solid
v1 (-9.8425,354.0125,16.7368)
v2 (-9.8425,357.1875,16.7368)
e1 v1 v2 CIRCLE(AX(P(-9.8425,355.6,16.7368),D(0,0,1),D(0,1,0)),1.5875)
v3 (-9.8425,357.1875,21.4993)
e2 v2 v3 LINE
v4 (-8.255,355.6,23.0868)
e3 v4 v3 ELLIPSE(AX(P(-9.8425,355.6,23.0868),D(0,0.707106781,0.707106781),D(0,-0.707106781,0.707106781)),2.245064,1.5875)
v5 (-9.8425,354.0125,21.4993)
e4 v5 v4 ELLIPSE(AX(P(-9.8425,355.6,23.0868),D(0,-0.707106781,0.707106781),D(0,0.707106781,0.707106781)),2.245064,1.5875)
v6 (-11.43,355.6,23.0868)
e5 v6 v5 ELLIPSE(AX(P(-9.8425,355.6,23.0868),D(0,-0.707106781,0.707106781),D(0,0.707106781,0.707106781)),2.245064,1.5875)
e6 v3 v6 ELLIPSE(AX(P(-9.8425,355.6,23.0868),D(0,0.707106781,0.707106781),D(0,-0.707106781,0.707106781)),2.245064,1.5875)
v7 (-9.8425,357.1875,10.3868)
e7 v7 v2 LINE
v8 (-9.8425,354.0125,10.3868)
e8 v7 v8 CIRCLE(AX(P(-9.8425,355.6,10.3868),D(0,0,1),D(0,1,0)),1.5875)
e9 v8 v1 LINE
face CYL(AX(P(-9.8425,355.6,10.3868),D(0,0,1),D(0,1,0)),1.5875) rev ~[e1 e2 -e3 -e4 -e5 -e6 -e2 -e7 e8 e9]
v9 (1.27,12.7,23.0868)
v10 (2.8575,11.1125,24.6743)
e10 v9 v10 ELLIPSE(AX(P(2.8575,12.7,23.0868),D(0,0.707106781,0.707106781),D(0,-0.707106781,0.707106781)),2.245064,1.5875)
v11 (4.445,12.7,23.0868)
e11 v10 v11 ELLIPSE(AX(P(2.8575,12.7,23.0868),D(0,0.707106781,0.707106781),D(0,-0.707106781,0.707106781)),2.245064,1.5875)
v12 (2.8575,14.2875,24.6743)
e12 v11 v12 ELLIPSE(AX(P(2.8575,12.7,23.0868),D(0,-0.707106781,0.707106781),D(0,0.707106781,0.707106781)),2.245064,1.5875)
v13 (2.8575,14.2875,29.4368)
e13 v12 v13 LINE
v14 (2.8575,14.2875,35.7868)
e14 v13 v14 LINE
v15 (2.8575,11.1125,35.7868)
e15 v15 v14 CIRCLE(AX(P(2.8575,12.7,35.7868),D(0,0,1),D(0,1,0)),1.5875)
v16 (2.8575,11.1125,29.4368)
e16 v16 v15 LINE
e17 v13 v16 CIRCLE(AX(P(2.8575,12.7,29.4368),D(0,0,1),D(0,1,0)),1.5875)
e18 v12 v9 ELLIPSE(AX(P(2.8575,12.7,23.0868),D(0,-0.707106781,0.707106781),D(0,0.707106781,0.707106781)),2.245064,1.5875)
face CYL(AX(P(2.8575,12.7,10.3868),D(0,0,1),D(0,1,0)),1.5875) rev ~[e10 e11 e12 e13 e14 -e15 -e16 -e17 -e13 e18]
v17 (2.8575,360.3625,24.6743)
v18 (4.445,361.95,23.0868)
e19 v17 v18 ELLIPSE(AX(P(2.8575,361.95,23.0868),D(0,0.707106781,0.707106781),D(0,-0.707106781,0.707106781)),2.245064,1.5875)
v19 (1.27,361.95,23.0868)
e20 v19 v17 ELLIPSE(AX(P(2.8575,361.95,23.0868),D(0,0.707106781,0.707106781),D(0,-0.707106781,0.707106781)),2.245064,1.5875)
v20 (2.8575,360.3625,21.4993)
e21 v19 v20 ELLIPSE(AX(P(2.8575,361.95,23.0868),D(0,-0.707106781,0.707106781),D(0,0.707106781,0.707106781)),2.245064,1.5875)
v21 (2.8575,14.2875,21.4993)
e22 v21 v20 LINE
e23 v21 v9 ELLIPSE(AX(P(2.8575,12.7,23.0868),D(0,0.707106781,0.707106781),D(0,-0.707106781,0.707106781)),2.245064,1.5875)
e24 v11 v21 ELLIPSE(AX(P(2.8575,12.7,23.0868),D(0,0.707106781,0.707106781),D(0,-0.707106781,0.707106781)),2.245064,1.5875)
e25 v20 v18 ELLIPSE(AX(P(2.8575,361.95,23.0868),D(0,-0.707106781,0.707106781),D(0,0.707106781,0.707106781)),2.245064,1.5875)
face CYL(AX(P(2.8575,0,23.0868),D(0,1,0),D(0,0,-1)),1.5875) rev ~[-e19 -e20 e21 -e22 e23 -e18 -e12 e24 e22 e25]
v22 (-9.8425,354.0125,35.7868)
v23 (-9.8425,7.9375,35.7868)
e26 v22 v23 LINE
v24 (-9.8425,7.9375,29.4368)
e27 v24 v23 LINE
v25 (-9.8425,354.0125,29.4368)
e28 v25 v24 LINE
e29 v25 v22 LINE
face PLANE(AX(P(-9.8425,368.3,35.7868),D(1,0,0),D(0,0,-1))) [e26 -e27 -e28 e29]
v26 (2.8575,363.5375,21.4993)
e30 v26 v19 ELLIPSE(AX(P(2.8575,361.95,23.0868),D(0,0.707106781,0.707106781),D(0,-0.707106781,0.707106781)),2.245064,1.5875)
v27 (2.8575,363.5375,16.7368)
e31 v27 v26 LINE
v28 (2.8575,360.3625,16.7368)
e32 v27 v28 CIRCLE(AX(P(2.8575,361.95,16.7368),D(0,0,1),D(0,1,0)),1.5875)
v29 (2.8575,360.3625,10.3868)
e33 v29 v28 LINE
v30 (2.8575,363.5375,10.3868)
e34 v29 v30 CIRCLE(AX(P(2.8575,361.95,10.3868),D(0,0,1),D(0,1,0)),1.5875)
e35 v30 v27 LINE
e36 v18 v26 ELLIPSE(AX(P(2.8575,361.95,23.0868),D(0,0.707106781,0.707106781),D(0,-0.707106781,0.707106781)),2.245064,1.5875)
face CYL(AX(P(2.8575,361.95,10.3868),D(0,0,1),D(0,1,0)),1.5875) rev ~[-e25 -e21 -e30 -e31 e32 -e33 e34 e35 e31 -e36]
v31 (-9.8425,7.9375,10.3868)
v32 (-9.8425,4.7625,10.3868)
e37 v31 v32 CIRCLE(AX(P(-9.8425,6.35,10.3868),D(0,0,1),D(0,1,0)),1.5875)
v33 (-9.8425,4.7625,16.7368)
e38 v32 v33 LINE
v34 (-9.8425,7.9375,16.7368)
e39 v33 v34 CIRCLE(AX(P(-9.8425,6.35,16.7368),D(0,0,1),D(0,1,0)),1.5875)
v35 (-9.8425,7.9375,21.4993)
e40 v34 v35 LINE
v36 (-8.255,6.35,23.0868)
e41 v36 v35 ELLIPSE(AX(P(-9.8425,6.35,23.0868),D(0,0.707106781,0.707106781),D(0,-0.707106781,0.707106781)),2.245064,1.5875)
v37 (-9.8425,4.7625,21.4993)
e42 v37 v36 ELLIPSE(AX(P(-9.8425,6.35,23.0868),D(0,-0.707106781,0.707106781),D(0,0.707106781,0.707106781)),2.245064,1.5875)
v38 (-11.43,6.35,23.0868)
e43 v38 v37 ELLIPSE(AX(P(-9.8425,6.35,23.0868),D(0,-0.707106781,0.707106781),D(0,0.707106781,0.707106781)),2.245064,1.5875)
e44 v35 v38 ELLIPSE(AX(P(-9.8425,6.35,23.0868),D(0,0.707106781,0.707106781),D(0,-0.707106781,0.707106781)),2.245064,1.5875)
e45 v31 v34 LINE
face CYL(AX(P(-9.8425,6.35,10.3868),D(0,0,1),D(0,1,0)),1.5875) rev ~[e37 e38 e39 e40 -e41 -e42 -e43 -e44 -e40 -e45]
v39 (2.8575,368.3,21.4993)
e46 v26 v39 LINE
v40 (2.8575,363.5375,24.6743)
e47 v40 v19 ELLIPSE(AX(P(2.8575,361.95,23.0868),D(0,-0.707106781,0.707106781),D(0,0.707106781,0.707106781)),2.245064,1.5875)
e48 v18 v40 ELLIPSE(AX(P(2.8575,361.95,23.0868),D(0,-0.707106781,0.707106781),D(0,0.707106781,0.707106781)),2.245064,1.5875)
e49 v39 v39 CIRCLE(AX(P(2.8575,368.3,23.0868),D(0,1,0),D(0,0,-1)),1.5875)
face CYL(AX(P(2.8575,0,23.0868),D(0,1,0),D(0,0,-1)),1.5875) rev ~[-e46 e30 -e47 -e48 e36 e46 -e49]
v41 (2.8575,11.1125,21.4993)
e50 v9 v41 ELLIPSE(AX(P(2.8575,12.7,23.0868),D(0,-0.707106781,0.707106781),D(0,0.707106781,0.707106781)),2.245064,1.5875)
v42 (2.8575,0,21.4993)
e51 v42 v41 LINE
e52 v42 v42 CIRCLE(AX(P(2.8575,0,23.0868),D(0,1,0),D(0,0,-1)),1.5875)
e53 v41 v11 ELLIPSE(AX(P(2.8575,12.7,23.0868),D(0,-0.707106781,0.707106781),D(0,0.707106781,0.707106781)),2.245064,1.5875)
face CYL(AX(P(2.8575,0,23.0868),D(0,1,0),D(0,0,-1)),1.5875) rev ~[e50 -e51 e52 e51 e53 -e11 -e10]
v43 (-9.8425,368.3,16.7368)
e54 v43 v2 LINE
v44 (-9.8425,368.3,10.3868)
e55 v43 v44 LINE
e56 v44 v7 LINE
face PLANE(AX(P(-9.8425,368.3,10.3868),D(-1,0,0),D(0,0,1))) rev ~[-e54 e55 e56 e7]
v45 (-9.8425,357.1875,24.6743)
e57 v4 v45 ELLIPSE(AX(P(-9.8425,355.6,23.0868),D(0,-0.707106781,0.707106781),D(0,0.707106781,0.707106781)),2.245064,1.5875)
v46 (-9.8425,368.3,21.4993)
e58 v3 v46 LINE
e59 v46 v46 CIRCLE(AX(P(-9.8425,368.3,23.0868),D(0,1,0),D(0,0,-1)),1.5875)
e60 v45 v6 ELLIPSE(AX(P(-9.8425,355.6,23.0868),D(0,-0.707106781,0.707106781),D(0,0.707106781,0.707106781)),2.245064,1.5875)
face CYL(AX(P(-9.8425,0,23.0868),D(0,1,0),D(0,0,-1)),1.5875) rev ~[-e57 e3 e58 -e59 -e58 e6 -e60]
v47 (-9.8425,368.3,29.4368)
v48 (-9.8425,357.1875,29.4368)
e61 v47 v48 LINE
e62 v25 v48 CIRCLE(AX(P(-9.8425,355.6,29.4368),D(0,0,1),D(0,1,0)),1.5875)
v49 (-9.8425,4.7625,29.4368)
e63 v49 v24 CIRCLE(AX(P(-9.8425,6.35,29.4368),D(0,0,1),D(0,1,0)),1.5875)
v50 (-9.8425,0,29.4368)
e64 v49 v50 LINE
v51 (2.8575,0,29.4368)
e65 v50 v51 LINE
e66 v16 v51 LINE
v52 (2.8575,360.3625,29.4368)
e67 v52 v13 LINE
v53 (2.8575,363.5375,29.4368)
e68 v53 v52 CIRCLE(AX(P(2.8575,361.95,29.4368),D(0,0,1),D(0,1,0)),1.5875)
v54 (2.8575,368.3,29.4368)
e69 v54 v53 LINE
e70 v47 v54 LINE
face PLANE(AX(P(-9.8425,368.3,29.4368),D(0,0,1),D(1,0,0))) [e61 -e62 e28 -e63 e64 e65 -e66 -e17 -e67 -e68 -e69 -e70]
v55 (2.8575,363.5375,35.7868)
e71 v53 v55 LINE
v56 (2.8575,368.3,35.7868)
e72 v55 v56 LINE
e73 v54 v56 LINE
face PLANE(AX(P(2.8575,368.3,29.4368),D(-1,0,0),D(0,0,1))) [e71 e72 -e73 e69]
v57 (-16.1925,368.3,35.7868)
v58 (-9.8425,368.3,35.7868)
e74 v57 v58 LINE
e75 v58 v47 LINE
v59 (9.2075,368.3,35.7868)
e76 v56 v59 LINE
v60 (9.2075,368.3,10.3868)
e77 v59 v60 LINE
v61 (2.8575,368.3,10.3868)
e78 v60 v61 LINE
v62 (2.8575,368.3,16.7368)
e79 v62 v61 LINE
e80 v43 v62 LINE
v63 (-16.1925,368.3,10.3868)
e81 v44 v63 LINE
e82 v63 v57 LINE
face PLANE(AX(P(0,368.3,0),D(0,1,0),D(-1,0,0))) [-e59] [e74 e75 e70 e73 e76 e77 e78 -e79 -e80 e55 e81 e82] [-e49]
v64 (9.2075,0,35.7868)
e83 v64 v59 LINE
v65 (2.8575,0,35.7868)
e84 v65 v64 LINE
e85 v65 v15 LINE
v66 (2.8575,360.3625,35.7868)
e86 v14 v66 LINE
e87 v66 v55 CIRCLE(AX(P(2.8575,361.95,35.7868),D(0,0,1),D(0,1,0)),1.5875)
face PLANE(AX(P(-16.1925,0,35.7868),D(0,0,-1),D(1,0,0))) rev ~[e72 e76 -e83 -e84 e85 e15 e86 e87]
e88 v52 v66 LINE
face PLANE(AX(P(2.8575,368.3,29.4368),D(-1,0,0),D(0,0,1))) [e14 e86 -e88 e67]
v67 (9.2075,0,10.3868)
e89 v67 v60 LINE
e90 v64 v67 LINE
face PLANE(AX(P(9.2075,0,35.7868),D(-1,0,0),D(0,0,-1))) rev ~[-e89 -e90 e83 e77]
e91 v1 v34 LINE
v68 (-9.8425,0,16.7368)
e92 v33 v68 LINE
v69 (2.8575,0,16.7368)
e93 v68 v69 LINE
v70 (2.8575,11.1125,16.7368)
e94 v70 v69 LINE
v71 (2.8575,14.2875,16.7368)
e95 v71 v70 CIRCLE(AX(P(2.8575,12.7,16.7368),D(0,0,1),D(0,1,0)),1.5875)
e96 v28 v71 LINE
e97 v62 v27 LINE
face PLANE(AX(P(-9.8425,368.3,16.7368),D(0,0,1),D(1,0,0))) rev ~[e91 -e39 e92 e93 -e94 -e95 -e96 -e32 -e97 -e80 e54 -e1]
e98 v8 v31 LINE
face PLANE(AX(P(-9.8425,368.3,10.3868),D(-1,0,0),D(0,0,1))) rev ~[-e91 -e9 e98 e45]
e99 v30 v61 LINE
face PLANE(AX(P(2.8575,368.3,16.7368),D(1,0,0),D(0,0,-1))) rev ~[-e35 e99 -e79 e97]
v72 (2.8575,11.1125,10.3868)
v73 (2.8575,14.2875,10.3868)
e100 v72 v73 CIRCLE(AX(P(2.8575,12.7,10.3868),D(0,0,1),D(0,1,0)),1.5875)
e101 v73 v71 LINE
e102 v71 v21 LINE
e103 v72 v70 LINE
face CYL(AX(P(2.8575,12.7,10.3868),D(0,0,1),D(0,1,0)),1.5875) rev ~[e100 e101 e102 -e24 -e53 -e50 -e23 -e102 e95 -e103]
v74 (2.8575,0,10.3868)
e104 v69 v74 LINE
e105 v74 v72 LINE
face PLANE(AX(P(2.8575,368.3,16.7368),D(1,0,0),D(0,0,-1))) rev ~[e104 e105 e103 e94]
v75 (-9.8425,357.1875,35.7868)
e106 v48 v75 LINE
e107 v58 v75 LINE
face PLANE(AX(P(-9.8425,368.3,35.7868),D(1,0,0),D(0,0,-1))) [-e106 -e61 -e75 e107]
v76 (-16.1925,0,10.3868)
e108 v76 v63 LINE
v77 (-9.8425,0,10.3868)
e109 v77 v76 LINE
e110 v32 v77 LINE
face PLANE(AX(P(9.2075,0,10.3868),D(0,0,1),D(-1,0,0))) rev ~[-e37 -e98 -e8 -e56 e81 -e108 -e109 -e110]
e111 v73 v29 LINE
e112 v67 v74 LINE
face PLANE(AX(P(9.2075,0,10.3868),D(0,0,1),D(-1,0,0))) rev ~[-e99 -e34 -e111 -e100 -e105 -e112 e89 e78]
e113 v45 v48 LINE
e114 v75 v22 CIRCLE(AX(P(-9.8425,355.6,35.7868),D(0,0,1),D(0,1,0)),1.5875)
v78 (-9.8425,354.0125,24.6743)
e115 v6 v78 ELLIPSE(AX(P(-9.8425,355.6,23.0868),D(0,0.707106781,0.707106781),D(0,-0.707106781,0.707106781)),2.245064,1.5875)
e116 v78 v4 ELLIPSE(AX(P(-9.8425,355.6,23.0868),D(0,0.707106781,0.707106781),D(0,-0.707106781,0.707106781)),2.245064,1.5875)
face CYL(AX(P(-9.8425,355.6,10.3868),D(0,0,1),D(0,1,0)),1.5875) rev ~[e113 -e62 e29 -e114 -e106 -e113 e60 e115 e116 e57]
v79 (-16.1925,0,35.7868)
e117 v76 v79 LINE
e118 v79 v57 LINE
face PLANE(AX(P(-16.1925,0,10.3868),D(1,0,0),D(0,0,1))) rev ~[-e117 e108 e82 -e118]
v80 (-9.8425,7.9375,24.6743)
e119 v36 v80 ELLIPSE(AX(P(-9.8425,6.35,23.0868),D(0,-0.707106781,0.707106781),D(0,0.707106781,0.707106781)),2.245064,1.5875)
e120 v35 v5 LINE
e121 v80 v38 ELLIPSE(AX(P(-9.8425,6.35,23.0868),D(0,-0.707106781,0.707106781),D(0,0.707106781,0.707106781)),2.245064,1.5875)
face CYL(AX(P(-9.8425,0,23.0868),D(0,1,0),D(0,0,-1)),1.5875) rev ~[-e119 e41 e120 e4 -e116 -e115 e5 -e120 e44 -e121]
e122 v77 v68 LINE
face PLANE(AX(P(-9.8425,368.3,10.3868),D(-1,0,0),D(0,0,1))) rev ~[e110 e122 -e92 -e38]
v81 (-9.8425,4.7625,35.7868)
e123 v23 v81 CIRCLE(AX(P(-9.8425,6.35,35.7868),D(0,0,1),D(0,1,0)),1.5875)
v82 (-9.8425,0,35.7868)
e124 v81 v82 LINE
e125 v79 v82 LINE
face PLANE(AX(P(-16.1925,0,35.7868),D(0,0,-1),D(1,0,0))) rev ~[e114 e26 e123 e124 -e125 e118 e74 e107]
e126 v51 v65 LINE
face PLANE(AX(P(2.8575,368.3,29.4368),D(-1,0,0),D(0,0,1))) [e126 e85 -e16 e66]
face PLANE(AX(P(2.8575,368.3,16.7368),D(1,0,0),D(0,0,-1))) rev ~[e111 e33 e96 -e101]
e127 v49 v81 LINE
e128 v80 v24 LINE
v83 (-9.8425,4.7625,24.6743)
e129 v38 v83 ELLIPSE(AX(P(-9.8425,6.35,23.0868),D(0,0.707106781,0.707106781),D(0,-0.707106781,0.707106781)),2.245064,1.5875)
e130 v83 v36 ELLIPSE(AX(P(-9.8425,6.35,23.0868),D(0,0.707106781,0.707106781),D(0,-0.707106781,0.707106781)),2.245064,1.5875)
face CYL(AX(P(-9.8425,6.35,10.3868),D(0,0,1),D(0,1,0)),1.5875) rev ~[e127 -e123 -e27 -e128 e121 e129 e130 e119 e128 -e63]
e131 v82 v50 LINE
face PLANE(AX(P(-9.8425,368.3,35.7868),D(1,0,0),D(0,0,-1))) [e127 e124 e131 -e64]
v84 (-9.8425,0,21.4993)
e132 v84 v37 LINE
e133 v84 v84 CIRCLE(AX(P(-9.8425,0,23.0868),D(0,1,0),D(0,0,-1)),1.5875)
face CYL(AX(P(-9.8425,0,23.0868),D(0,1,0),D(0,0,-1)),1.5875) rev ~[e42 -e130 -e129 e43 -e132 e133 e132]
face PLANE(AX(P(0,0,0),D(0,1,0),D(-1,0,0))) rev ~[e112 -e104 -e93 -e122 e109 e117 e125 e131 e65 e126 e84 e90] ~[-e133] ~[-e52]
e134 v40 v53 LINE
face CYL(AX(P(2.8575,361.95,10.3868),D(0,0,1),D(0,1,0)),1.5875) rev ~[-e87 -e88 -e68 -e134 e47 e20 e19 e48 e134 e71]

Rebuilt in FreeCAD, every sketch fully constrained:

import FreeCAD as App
import Part
import Sketcher
Q = App.Units.Quantity

doc = App.newDocument("Part")
body = doc.addObject("PartDesign::Body", "Body")

# Sketch on XZ plane
sketch1 = doc.addObject("Sketcher::SketchObject", "Sketch")
body.addObject(sketch1)
sketch1.AttachmentSupport = (doc.XZ_Plane, [""])
sketch1.MapMode = "FlatFace"
sketch1.addGeometry(Part.LineSegment(App.Vector(-16, 10, 0), App.Vector(-16, 36, 0)), False)
sketch1.addGeometry(Part.LineSegment(App.Vector(-16, 36, 0), App.Vector(9, 36, 0)), False)
sketch1.addGeometry(Part.LineSegment(App.Vector(9, 36, 0), App.Vector(9, 10, 0)), False)
sketch1.addGeometry(Part.LineSegment(App.Vector(9, 10, 0), App.Vector(-16, 10, 0)), False)
sketch1.addConstraint(Sketcher.Constraint("Coincident", 0, 2, 1, 1))
sketch1.addConstraint(Sketcher.Constraint("Coincident", 1, 2, 2, 1))
sketch1.addConstraint(Sketcher.Constraint("Coincident", 2, 2, 3, 1))
sketch1.addConstraint(Sketcher.Constraint("Coincident", 3, 2, 0, 1))
sketch1.addConstraint(Sketcher.Constraint("Vertical", 0))
sketch1.addConstraint(Sketcher.Constraint("Horizontal", 1))
sketch1.addConstraint(Sketcher.Constraint("Vertical", 2))
sketch1.addConstraint(Sketcher.Constraint("Horizontal", 3))
sketch1.addConstraint(Sketcher.Constraint("Equal", 3, 0))
sketch1.addConstraint(Sketcher.Constraint("DistanceX", 1, 1, 1, 2, Q("1 in")))
sketch1.addConstraint(Sketcher.Constraint("DistanceX", 0, 2, -1, 1, Q("0.6375 in")))
sketch1.addConstraint(Sketcher.Constraint("DistanceY", -1, 1, 0, 2, 35.7868))
pad1 = doc.addObject("PartDesign::Pad", "Pad")
body.addObject(pad1)
pad1.Profile = sketch1
pad1.Length = Q("14.5 in")
pad1.Reversed = True

# Sketch on XZ plane
sketch2 = doc.addObject("Sketcher::SketchObject", "Sketch001")
body.addObject(sketch2)
sketch2.AttachmentSupport = (doc.XZ_Plane, [""])
sketch2.MapMode = "FlatFace"
sketch2.AttachmentOffset = App.Placement(App.Vector(0, 0, -14.5 * 25.4), App.Rotation())
sketch2.addGeometry(Part.LineSegment(App.Vector(-10, 17, 0), App.Vector(3, 17, 0)), False)
sketch2.addGeometry(Part.LineSegment(App.Vector(3, 17, 0), App.Vector(3, 1, 0)), False)
sketch2.addGeometry(Part.LineSegment(App.Vector(3, 1, 0), App.Vector(-10, 1, 0)), False)
sketch2.addGeometry(Part.LineSegment(App.Vector(-10, 1, 0), App.Vector(-10, 17, 0)), False)
sketch2.addConstraint(Sketcher.Constraint("Coincident", 0, 2, 1, 1))
sketch2.addConstraint(Sketcher.Constraint("Coincident", 1, 2, 2, 1))
sketch2.addConstraint(Sketcher.Constraint("Coincident", 2, 2, 3, 1))
sketch2.addConstraint(Sketcher.Constraint("Coincident", 3, 2, 0, 1))
sketch2.addConstraint(Sketcher.Constraint("Horizontal", 0))
sketch2.addConstraint(Sketcher.Constraint("Vertical", 1))
sketch2.addConstraint(Sketcher.Constraint("Horizontal", 2))
sketch2.addConstraint(Sketcher.Constraint("Vertical", 3))
sketch2.addConstraint(Sketcher.Constraint("DistanceX", 0, 1, 0, 2, Q("0.5 in")))
sketch2.addConstraint(Sketcher.Constraint("DistanceY", 1, 2, 1, 1, 15.7338))
sketch2.addConstraint(Sketcher.Constraint("DistanceX", -1, 1, 0, 2, Q("0.1125 in")))
sketch2.addConstraint(Sketcher.Constraint("DistanceY", -1, 1, 1, 2, Q("0.0395 in")))
pocket1 = doc.addObject("PartDesign::Pocket", "Pocket")
body.addObject(pocket1)
pocket1.Profile = sketch2
pocket1.Length = Q("20 in")
pocket1.Reversed = True

# Sketch on XZ plane
sketch3 = doc.addObject("Sketcher::SketchObject", "Sketch002")
body.addObject(sketch3)
sketch3.AttachmentSupport = (doc.XZ_Plane, [""])
sketch3.MapMode = "FlatFace"
sketch3.AttachmentOffset = App.Placement(App.Vector(0, 0, -14.5 * 25.4), App.Rotation())
sketch3.addGeometry(Part.LineSegment(App.Vector(3, 29, 0), App.Vector(-10, 29, 0)), False)
sketch3.addGeometry(Part.LineSegment(App.Vector(-10, 29, 0), App.Vector(-10, 46, 0)), False)
sketch3.addGeometry(Part.LineSegment(App.Vector(-10, 46, 0), App.Vector(3, 46, 0)), False)
sketch3.addGeometry(Part.LineSegment(App.Vector(3, 46, 0), App.Vector(3, 29, 0)), False)
sketch3.addConstraint(Sketcher.Constraint("Coincident", 0, 2, 1, 1))
sketch3.addConstraint(Sketcher.Constraint("Coincident", 1, 2, 2, 1))
sketch3.addConstraint(Sketcher.Constraint("Coincident", 2, 2, 3, 1))
sketch3.addConstraint(Sketcher.Constraint("Coincident", 3, 2, 0, 1))
sketch3.addConstraint(Sketcher.Constraint("Horizontal", 0))
sketch3.addConstraint(Sketcher.Constraint("Vertical", 1))
sketch3.addConstraint(Sketcher.Constraint("Horizontal", 2))
sketch3.addConstraint(Sketcher.Constraint("Vertical", 3))
sketch3.addConstraint(Sketcher.Constraint("DistanceX", 0, 2, 0, 1, Q("0.5 in")))
sketch3.addConstraint(Sketcher.Constraint("DistanceY", 1, 1, 1, 2, Q("0.6476 in")))
sketch3.addConstraint(Sketcher.Constraint("DistanceX", 0, 2, -1, 1, Q("0.3875 in")))
sketch3.addConstraint(Sketcher.Constraint("DistanceY", -1, 1, 0, 2, 29.4368))
pocket2 = doc.addObject("PartDesign::Pocket", "Pocket001")
body.addObject(pocket2)
pocket2.Profile = sketch3
pocket2.Length = Q("20 in")
pocket2.Reversed = True

# Sketch on XY plane
sketch4 = doc.addObject("Sketcher::SketchObject", "Sketch003")
body.addObject(sketch4)
sketch4.AttachmentSupport = (doc.XY_Plane, [""])
sketch4.MapMode = "FlatFace"
sketch4.AttachmentOffset = App.Placement(App.Vector(0, 0, 10.3868), App.Rotation())
sketch4.addGeometry(Part.Circle(App.Vector(-9.8, 6.3, 0), App.Vector(0, 0, 1), 1.6), False)
sketch4.addGeometry(Part.Circle(App.Vector(2.9, 12.7, 0), App.Vector(0, 0, 1), 1.6), False)
sketch4.addConstraint(Sketcher.Constraint("Equal", 0, 1))
sketch4.addConstraint(Sketcher.Constraint("Diameter", 0, Q("0.125 in")))
sketch4.addConstraint(Sketcher.Constraint("DistanceY", -1, 1, 1, 3, Q("0.5 in")))
sketch4.addConstraint(Sketcher.Constraint("DistanceX", 0, 3, 1, 3, Q("0.5 in")))
sketch4.addConstraint(Sketcher.Constraint("DistanceY", -1, 1, 0, 3, Q("0.25 in")))
sketch4.addConstraint(Sketcher.Constraint("DistanceX", 0, 3, -1, 1, Q("0.3875 in")))
doc.recompute()
hole = doc.addObject("PartDesign::Hole", "Hole")
body.addObject(hole)
hole.Profile = sketch4
hole.ThreadType = "None"
hole.Diameter = Q("0.125 in")
hole.DepthType = "ThroughAll"
hole.Reversed = True

# Sketch on XY plane
sketch5 = doc.addObject("Sketcher::SketchObject", "Sketch004")
body.addObject(sketch5)
sketch5.AttachmentSupport = (doc.XY_Plane, [""])
sketch5.MapMode = "FlatFace"
sketch5.AttachmentOffset = App.Placement(App.Vector(0, 0, 10.3868), App.Rotation())
sketch5.addGeometry(Part.Circle(App.Vector(2.9, 361.9, 0), App.Vector(0, 0, 1), 1.6), False)
sketch5.addGeometry(Part.Circle(App.Vector(-9.8, 355.6, 0), App.Vector(0, 0, 1), 1.6), False)
sketch5.addConstraint(Sketcher.Constraint("Equal", 0, 1))
sketch5.addConstraint(Sketcher.Constraint("Diameter", 0, Q("0.125 in")))
sketch5.addConstraint(Sketcher.Constraint("DistanceY", -1, 1, 1, 3, Q("14 in")))
sketch5.addConstraint(Sketcher.Constraint("DistanceX", 1, 3, 0, 3, Q("0.5 in")))
sketch5.addConstraint(Sketcher.Constraint("DistanceY", -1, 1, 0, 3, Q("14.25 in")))
sketch5.addConstraint(Sketcher.Constraint("DistanceX", -1, 1, 0, 3, Q("0.1125 in")))
doc.recompute()
hole2 = doc.addObject("PartDesign::Hole", "Hole001")
body.addObject(hole2)
hole2.Profile = sketch5
hole2.ThreadType = "None"
hole2.Diameter = Q("0.125 in")
hole2.DepthType = "ThroughAll"
hole2.Reversed = True

# Sketch on XZ plane
sketch6 = doc.addObject("Sketcher::SketchObject", "Sketch005")
body.addObject(sketch6)
sketch6.AttachmentSupport = (doc.XZ_Plane, [""])
sketch6.MapMode = "FlatFace"
sketch6.addGeometry(Part.Circle(App.Vector(-9.8, 23.1, 0), App.Vector(0, 0, 1), 1.6), False)
sketch6.addGeometry(Part.Circle(App.Vector(2.9, 23.1, 0), App.Vector(0, 0, 1), 1.6), False)
sketch6.addConstraint(Sketcher.Constraint("Equal", 0, 1))
sketch6.addConstraint(Sketcher.Constraint("Horizontal", 0, 3, 1, 3))
sketch6.addConstraint(Sketcher.Constraint("Diameter", 0, Q("0.125 in")))
sketch6.addConstraint(Sketcher.Constraint("DistanceX", 0, 3, 1, 3, Q("0.5 in")))
sketch6.addConstraint(Sketcher.Constraint("DistanceX", 0, 3, -1, 1, Q("0.3875 in")))
sketch6.addConstraint(Sketcher.Constraint("DistanceY", -1, 1, 0, 3, 23.0868))
doc.recompute()
hole3 = doc.addObject("PartDesign::Hole", "Hole002")
body.addObject(hole3)
hole3.Profile = sketch6
hole3.ThreadType = "None"
hole3.Diameter = Q("0.125 in")
hole3.DepthType = "ThroughAll"

doc.recompute()
